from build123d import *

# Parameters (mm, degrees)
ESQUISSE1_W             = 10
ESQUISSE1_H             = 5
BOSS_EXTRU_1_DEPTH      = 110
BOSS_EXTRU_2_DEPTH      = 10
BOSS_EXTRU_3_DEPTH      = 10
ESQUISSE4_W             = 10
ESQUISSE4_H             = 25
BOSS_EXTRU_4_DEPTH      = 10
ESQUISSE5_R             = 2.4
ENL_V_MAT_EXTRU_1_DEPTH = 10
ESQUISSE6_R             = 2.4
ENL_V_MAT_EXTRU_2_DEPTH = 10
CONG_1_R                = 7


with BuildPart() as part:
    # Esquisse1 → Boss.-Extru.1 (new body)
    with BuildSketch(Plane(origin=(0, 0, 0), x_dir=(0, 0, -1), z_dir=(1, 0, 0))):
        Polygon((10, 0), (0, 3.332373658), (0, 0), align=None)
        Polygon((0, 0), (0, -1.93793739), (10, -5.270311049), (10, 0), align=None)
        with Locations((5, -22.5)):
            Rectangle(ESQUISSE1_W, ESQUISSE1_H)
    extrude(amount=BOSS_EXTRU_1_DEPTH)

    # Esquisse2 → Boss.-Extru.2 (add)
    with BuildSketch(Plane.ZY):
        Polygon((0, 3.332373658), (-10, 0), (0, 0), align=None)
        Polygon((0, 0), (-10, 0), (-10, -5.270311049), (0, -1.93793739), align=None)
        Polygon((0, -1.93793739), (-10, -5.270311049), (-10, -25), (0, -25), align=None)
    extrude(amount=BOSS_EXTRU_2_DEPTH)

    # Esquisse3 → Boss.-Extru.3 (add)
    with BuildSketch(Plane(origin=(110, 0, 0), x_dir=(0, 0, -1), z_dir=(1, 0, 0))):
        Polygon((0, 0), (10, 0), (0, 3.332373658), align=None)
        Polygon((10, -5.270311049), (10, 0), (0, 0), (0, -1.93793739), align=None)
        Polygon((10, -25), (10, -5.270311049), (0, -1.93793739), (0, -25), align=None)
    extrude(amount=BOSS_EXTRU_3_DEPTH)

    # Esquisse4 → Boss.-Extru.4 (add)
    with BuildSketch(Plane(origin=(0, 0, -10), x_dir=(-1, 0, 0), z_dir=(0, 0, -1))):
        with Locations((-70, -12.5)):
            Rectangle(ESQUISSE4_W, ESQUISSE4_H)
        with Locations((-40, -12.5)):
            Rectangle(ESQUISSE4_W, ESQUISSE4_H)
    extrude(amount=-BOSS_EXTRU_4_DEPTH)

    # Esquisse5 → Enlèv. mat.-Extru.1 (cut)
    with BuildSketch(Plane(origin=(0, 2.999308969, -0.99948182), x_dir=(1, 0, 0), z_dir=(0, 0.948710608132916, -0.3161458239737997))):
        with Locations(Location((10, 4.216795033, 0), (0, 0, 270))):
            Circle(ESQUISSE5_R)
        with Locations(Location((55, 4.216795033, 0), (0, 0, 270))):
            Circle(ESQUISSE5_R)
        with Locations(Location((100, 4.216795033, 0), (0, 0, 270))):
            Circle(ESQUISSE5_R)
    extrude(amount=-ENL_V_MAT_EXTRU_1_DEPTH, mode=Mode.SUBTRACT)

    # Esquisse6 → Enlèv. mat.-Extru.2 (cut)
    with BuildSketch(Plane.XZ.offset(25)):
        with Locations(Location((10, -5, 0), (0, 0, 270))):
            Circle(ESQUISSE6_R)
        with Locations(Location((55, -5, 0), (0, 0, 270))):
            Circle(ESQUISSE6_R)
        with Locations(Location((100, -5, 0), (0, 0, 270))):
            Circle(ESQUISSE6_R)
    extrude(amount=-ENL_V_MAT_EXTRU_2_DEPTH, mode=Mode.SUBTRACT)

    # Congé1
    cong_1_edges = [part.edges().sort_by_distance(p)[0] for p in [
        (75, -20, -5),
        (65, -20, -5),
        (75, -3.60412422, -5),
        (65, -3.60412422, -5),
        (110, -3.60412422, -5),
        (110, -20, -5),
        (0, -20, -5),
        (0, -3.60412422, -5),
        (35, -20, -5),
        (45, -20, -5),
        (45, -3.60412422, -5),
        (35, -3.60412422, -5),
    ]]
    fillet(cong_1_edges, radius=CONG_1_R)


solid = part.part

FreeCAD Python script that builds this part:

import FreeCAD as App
import Part
import Sketcher
Q = App.Units.Quantity


def edges_at(feature, points):
    """Names of the edges that pass closest to the given points."""
    edges = feature.Shape.Edges
    near = lambda p: min(range(len(edges)), key=lambda i: edges[i].distToShape(Part.Vertex(*p))[0])
    return sorted({f"Edge{near(p) + 1}" for p in points})


def add_polygon(sketch, points):
    """Adds a closed chain of lines whose ends are joined by coincident constraints."""
    first, n = sketch.GeometryCount, len(points)
    for a, b in zip(points, points[1:] + points[:1]):
        sketch.addGeometry(Part.LineSegment(App.Vector(*a, 0), App.Vector(*b, 0)), False)
    for i in range(n):
        sketch.addConstraint(Sketcher.Constraint("Coincident", first + i, 2, first + (i + 1) % n, 1))

doc = App.newDocument("Part")
params = doc.addObject("Spreadsheet::Sheet", "Params")
for row, (alias, value) in enumerate([
    ("sketch1_width", "5 mm"),
    ("sketch1_height", "10 mm"),
    ("pad1_length", "110 mm"),
    ("sketch2_width", "25 mm"),
    ("sketch2_height", "10 mm"),
    ("pad2_length", "10 mm"),
    ("sketch3_width", "25 mm"),
    ("sketch3_height", "10 mm"),
    ("pad3_length", "10 mm"),
    ("sketch4_width", "10 mm"),
    ("sketch4_height", "25 mm"),
    ("pad4_length", "10 mm"),
    ("sketch5_diameter", "4.8 mm"),
    ("pocket1_length", "10 mm"),
    ("sketch6_diameter", "4.8 mm"),
    ("pocket2_length", "10 mm"),
    ("fillet_radius", "7 mm"),
], start=1):
    params.set(f"A{row}", alias)
    params.set(f"B{row}", "=" + value)
    params.setAlias(f"B{row}", alias)

body = doc.addObject("PartDesign::Body", "Body")
body.AllowCompound = True

sketch1 = body.newObject("Sketcher::SketchObject", "Sketch")
sketch1.AttachmentSupport = (doc.getObject("YZ_Plane"), [""])
sketch1.MapMode = "FlatFace"
add_polygon(sketch1, [(0, -10), (3, 0), (-2, 0), (-5, -10)])
add_polygon(sketch1, [(-20, 0), (-25, 0), (-25, -10), (-20, -10)])
sketch1.addConstraint(Sketcher.Constraint("Horizontal", 1))
sketch1.addConstraint(Sketcher.Constraint("Horizontal", 3))
sketch1.addConstraint(Sketcher.Constraint("Horizontal", 4))
sketch1.addConstraint(Sketcher.Constraint("Vertical", 5))
sketch1.addConstraint(Sketcher.Constraint("Horizontal", 6))
sketch1.addConstraint(Sketcher.Constraint("Vertical", 7))
sketch1.addConstraint(Sketcher.Constraint("PointOnObject", 0, 2, -1))
sketch1.addConstraint(Sketcher.Constraint("PointOnObject", 3, 2, -2))
sketch1.addConstraint(Sketcher.Constraint("PointOnObject", 4, 2, -1))
sketch1.addConstraint(Sketcher.Constraint("Parallel", 0, 2))
sketch1.addConstraint(Sketcher.Constraint("Horizontal", 3, 2, 5, 2))
sketch1.addConstraint(Sketcher.Constraint("DistanceX", 4, 2, 4, 1, Q("5 mm")))
sketch1.addConstraint(Sketcher.Constraint("DistanceY", 5, 2, 5, 1, Q("10 mm")))
sketch1.addConstraint(Sketcher.Constraint("DistanceX", 4, 2, -1, 1, Q("25 mm")))
sketch1.addConstraint(Sketcher.Constraint("Angle", 0, Q("71.57 deg")))
sketch1.addConstraint(Sketcher.Constraint("DistanceX", 1, 2, 1, 1, Q("5.270311 mm")))
sketch1.setExpression("Constraints[19]", "Params.sketch1_width")
sketch1.setExpression("Constraints[20]", "Params.sketch1_height")
pad1 = body.newObject("PartDesign::Pad", "Pad")
pad1.Profile = sketch1
pad1.setExpression("Length", "Params.pad1_length")

sketch2 = body.newObject("Sketcher::SketchObject", "Sketch001")
sketch2.AttachmentSupport = (doc.getObject("YZ_Plane"), [""])
sketch2.MapMode = "FlatFace"
add_polygon(sketch2, [(3, 0), (0, -10), (-25, -10), (-25, 0)])
sketch2.addConstraint(Sketcher.Constraint("Horizontal", 1))
sketch2.addConstraint(Sketcher.Constraint("Vertical", 2))
sketch2.addConstraint(Sketcher.Constraint("Horizontal", 3))
sketch2.addConstraint(Sketcher.Constraint("PointOnObject", 0, 2, -2))
sketch2.addConstraint(Sketcher.Constraint("PointOnObject", 2, 2, -1))
sketch2.addConstraint(Sketcher.Constraint("DistanceX", 1, 2, 1, 1, Q("25 mm")))
sketch2.addConstraint(Sketcher.Constraint("DistanceY", 2, 1, 2, 2, Q("10 mm")))
sketch2.addConstraint(Sketcher.Constraint("Angle", 0, Q("-108.43 deg")))
sketch2.setExpression("Constraints[9]", "Params.sketch2_width")
sketch2.setExpression("Constraints[10]", "Params.sketch2_height")
pad2 = body.newObject("PartDesign::Pad", "Pad001")
pad2.Profile = sketch2
pad2.setExpression("Length", "Params.pad2_length")
pad2.Reversed = True

sketch3 = body.newObject("Sketcher::SketchObject", "Sketch002")
sketch3.AttachmentSupport = (doc.getObject("YZ_Plane"), [""])
sketch3.MapMode = "FlatFace"
sketch3.AttachmentOffset = App.Placement(App.Vector(0, 0, 110), App.Rotation())
add_polygon(sketch3, [(0, -10), (3, 0), (-25, 0), (-25, -10)])
sketch3.addConstraint(Sketcher.Constraint("Horizontal", 1))
sketch3.addConstraint(Sketcher.Constraint("Vertical", 2))
sketch3.addConstraint(Sketcher.Constraint("Horizontal", 3))
sketch3.addConstraint(Sketcher.Constraint("PointOnObject", 0, 2, -1))
sketch3.addConstraint(Sketcher.Constraint("PointOnObject", 3, 2, -2))
sketch3.addConstraint(Sketcher.Constraint("DistanceX", 3, 1, 3, 2, Q("25 mm")))
sketch3.addConstraint(Sketcher.Constraint("DistanceY", 2, 2, 2, 1, Q("10 mm")))
sketch3.addConstraint(Sketcher.Constraint("Angle", 0, Q("71.57 deg")))
sketch3.setExpression("Constraints[9]", "Params.sketch3_width")
sketch3.setExpression("Constraints[10]", "Params.sketch3_height")
pad3 = body.newObject("PartDesign::Pad", "Pad002")
pad3.Profile = sketch3
pad3.setExpression("Length", "Params.pad3_length")

sketch4 = body.newObject("Sketcher::SketchObject", "Sketch003")
sketch4.AttachmentSupport = (doc.getObject("XY_Plane"), [""])
sketch4.MapMode = "FlatFace"
sketch4.AttachmentOffset = App.Placement(App.Vector(0, 0, -10), App.Rotation())
add_polygon(sketch4, [(75, 0), (75, -25), (65, -25), (65, 0)])
add_polygon(sketch4, [(45, 0), (45, -25), (35, -25), (35, 0)])
sketch4.addConstraint(Sketcher.Constraint("Vertical", 0))
sketch4.addConstraint(Sketcher.Constraint("Horizontal", 1))
sketch4.addConstraint(Sketcher.Constraint("Vertical", 2))
sketch4.addConstraint(Sketcher.Constraint("Horizontal", 3))
sketch4.addConstraint(Sketcher.Constraint("Vertical", 4))
sketch4.addConstraint(Sketcher.Constraint("Horizontal", 5))
sketch4.addConstraint(Sketcher.Constraint("Vertical", 6))
sketch4.addConstraint(Sketcher.Constraint("Horizontal", 7))
sketch4.addConstraint(Sketcher.Constraint("PointOnObject", 2, 2, -1))
sketch4.addConstraint(Sketcher.Constraint("PointOnObject", 6, 2, -1))
sketch4.addConstraint(Sketcher.Constraint("Horizontal", 1, 2, 4, 2))
sketch4.addConstraint(Sketcher.Constraint("Equal", 3, 5))
sketch4.addConstraint(Sketcher.Constraint("DistanceX", 1, 2, 1, 1, Q("10 mm")))
sketch4.addConstraint(Sketcher.Constraint("DistanceY", 0, 2, 0, 1, Q("25 mm")))
sketch4.addConstraint(Sketcher.Constraint("DistanceX", -1, 1, 0, 2, Q("75 mm")))
sketch4.addConstraint(Sketcher.Constraint("DistanceX", -1, 1, 4, 2, Q("45 mm")))
sketch4.setExpression("Constraints[20]", "Params.sketch4_width")
sketch4.setExpression("Constraints[21]", "Params.sketch4_height")
pad4 = body.newObject("PartDesign::Pad", "Pad003")
pad4.Profile = sketch4
pad4.setExpression("Length", "Params.pad4_length")

sketch5 = body.newObject("Sketcher::SketchObject", "Sketch004")
sketch5.Placement = App.Placement(App.Vector(0, 2.999309, -0.999482), App.Rotation(App.Vector(1, 0, 0), App.Vector(0, -0.316145824, -0.948710608), App.Vector(0, 0.948710608, -0.316145824), "ZXY"))
sketch5.addGeometry(Part.Circle(App.Vector(10, 4.2, 0), App.Vector(0, 0, 1), 2.4), False)
sketch5.addGeometry(Part.Circle(App.Vector(55, 4.2, 0), App.Vector(0, 0, 1), 2.4), False)
sketch5.addGeometry(Part.Circle(App.Vector(100, 4.2, 0), App.Vector(0, 0, 1), 2.4), False)
sketch5.addConstraint(Sketcher.Constraint("Equal", 0, 1))
sketch5.addConstraint(Sketcher.Constraint("Equal", 1, 2))
sketch5.addConstraint(Sketcher.Constraint("Horizontal", 0, 3, 1, 3))
sketch5.addConstraint(Sketcher.Constraint("Horizontal", 1, 3, 2, 3))
sketch5.addConstraint(Sketcher.Constraint("Diameter", 0, Q("4.8 mm")))
sketch5.addConstraint(Sketcher.Constraint("DistanceX", -1, 1, 0, 3, Q("10 mm")))
sketch5.addConstraint(Sketcher.Constraint("DistanceX", -1, 1, 1, 3, Q("55 mm")))
sketch5.addConstraint(Sketcher.Constraint("DistanceX", -1, 1, 2, 3, Q("100 mm")))
sketch5.addConstraint(Sketcher.Constraint("DistanceY", -1, 1, 0, 3, Q("4.216795 mm")))
sketch5.setExpression("Constraints[4]", "Params.sketch5_diameter")
pocket1 = body.newObject("PartDesign::Pocket", "Pocket")
pocket1.Profile = sketch5
pocket1.setExpression("Length", "Params.pocket1_length")

sketch6 = body.newObject("Sketcher::SketchObject", "Sketch005")
sketch6.AttachmentSupport = (doc.getObject("XZ_Plane"), [""])
sketch6.MapMode = "FlatFace"
sketch6.AttachmentOffset = App.Placement(App.Vector(0, 0, 25), App.Rotation())
sketch6.addGeometry(Part.Circle(App.Vector(10, -5, 0), App.Vector(0, 0, 1), 2.4), False)
sketch6.addGeometry(Part.Circle(App.Vector(55, -5, 0), App.Vector(0, 0, 1), 2.4), False)
sketch6.addGeometry(Part.Circle(App.Vector(100, -5, 0), App.Vector(0, 0, 1), 2.4), False)
sketch6.addConstraint(Sketcher.Constraint("Equal", 0, 1))
sketch6.addConstraint(Sketcher.Constraint("Equal", 1, 2))
sketch6.addConstraint(Sketcher.Constraint("Horizontal", 0, 3, 1, 3))
sketch6.addConstraint(Sketcher.Constraint("Horizontal", 1, 3, 2, 3))
sketch6.addConstraint(Sketcher.Constraint("Diameter", 0, Q("4.8 mm")))
sketch6.addConstraint(Sketcher.Constraint("DistanceX", -1, 1, 0, 3, Q("10 mm")))
sketch6.addConstraint(Sketcher.Constraint("DistanceY", 0, 3, -1, 1, Q("5 mm")))
sketch6.addConstraint(Sketcher.Constraint("DistanceX", -1, 1, 1, 3, Q("55 mm")))
sketch6.addConstraint(Sketcher.Constraint("DistanceX", -1, 1, 2, 3, Q("100 mm")))
sketch6.setExpression("Constraints[4]", "Params.sketch6_diameter")
pocket2 = body.newObject("PartDesign::Pocket", "Pocket001")
pocket2.Profile = sketch6
pocket2.setExpression("Length", "Params.pocket2_length")
doc.recompute()

fillet = body.newObject("PartDesign::Fillet", "Fillet")
fillet.Base = (pocket2, edges_at(pocket2, [
    (75, -20, -5),
    (65, -20, -5),
    (75, -3.604, -5),
    (65, -3.604, -5),
    (110, -3.604, -5),
    (110, -20, -5),
    (0, -20, -5),
    (0, -3.604, -5),
    (35, -20, -5),
    (45, -20, -5),
    (45, -3.604, -5),
    (35, -3.604, -5),
]))
fillet.setExpression("Radius", "Params.fillet_radius")

doc.recompute()
